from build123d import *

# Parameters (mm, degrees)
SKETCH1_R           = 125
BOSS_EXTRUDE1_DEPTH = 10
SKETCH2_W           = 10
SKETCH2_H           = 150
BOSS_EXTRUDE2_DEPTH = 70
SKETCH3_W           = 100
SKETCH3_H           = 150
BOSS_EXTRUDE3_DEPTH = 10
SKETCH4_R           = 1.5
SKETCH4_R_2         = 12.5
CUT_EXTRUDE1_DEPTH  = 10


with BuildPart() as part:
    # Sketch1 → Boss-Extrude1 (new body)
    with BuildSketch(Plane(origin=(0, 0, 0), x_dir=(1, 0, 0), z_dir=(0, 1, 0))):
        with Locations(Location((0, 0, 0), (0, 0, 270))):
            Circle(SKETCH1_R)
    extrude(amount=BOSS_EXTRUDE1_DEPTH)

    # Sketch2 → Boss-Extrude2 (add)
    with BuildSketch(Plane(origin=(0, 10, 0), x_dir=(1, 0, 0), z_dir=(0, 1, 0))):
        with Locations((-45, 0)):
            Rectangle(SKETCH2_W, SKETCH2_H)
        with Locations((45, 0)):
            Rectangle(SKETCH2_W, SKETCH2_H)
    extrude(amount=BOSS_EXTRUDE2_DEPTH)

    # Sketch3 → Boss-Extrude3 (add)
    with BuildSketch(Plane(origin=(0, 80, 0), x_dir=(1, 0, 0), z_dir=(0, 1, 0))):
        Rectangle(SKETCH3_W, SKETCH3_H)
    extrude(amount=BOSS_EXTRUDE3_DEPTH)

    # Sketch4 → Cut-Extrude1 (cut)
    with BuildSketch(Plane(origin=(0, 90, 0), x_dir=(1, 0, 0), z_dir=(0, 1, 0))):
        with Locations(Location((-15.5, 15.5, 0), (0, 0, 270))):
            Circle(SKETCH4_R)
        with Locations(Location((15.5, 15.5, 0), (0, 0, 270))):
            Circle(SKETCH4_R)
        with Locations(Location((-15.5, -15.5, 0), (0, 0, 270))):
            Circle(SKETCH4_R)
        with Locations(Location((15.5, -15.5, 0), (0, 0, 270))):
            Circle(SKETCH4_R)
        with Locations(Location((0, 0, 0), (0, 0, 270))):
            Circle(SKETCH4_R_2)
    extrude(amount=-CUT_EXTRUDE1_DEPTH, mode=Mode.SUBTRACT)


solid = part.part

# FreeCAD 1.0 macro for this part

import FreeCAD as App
import Part
import Sketcher


def add_polygon(sketch, points):
    """Adds a closed chain of lines whose ends are joined by coincident constraints."""
    first, n = sketch.GeometryCount, len(points)
    for a, b in zip(points, points[1:] + points[:1]):
        sketch.addGeometry(Part.LineSegment(App.Vector(*a, 0), App.Vector(*b, 0)), False)
    for i in range(n):
        sketch.addConstraint(Sketcher.Constraint("Coincident", first + i, 2, first + (i + 1) % n, 1))

doc = App.newDocument("Part")
params = doc.addObject("Spreadsheet::Sheet", "Params")
for row, (alias, value) in enumerate([
    ("sketch1_diameter", "250 mm"),
    ("pad1_length", "10 mm"),
    ("sketch2_width", "10 mm"),
    ("sketch2_height", "150 mm"),
    ("pad2_length", "70 mm"),
    ("sketch3_width", "100 mm"),
    ("sketch3_height", "150 mm"),
    ("pad3_length", "10 mm"),
    ("sketch4_diameter", "3 mm"),
    ("sketch4_diameter2", "25 mm"),
    ("pocket1_length", "10 mm"),
], start=1):
    params.set(f"A{row}", alias)
    params.set(f"B{row}", "=" + value)
    params.setAlias(f"B{row}", alias)

body = doc.addObject("PartDesign::Body", "Body")

# Sketch on XZ plane
sketch1 = body.newObject("Sketcher::SketchObject", "Sketch")
sketch1.AttachmentSupport = (doc.getObject("XZ_Plane"), [""])
sketch1.MapMode = "FlatFace"
sketch1.addGeometry(Part.Circle(App.Vector(0, 0, 0), App.Vector(0, 0, 1), 125), False)
sketch1.addConstraint([
    Sketcher.Constraint("Coincident", 0, 3, -1, 1),
    Sketcher.Constraint("Diameter", 0, 250.0),
])
sketch1.setExpression("Constraints[1]", "Params.sketch1_diameter")
pad1 = body.newObject("PartDesign::Pad", "Pad")
pad1.Profile = sketch1
pad1.setExpression("Length", "Params.pad1_length")
pad1.Reversed = True

# Sketch on XZ plane
sketch2 = body.newObject("Sketcher::SketchObject", "Sketch001")
sketch2.AttachmentSupport = (doc.getObject("XZ_Plane"), [""])
sketch2.MapMode = "FlatFace"
sketch2.AttachmentOffset = App.Placement(App.Vector(0, 0, -10), App.Rotation())
add_polygon(sketch2, [(-50, -75), (-50, 75), (-40, 75), (-40, -75)])  # lines 0-3
add_polygon(sketch2, [(40, -75), (40, 75), (50, 75), (50, -75)])  # lines 4-7
sketch2.addConstraint([
    Sketcher.Constraint("Vertical", 0),
    Sketcher.Constraint("Horizontal", 1),
    Sketcher.Constraint("Vertical", 2),
    Sketcher.Constraint("Horizontal", 3),
    Sketcher.Constraint("Vertical", 4),
    Sketcher.Constraint("Horizontal", 5),
    Sketcher.Constraint("Vertical", 6),
    Sketcher.Constraint("Horizontal", 7),
    Sketcher.Constraint("Symmetric", 2, 2, 4, 2, -1, 1),
    Sketcher.Constraint("Symmetric", 0, 2, 6, 2, -1, 1),
    Sketcher.Constraint("Horizontal", 1, 2, 4, 2),
    Sketcher.Constraint("DistanceX", 1, 1, 1, 2, 10.0),
    Sketcher.Constraint("DistanceY", 0, 1, 0, 2, 150.0),
    Sketcher.Constraint("DistanceX", 0, 2, -1, 1, 50.0),
])
sketch2.setExpression("Constraints[19]", "Params.sketch2_width")
sketch2.setExpression("Constraints[20]", "Params.sketch2_height")
pad2 = body.newObject("PartDesign::Pad", "Pad001")
pad2.Profile = sketch2
pad2.setExpression("Length", "Params.pad2_length")
pad2.Reversed = True

# Sketch on XZ plane
sketch3 = body.newObject("Sketcher::SketchObject", "Sketch002")
sketch3.AttachmentSupport = (doc.getObject("XZ_Plane"), [""])
sketch3.MapMode = "FlatFace"
sketch3.AttachmentOffset = App.Placement(App.Vector(0, 0, -80), App.Rotation())
add_polygon(sketch3, [(-50, -75), (-50, 75), (50, 75), (50, -75)])  # lines 0-3
sketch3.addConstraint([
    Sketcher.Constraint("Vertical", 0),
    Sketcher.Constraint("Horizontal", 1),
    Sketcher.Constraint("Vertical", 2),
    Sketcher.Constraint("Horizontal", 3),
    Sketcher.Constraint("Symmetric", 0, 2, 2, 2, -1, 1),
    Sketcher.Constraint("DistanceX", 1, 1, 1, 2, 100.0),
    Sketcher.Constraint("DistanceY", 0, 1, 0, 2, 150.0),
])
sketch3.setExpression("Constraints[9]", "Params.sketch3_width")
sketch3.setExpression("Constraints[10]", "Params.sketch3_height")
pad3 = body.newObject("PartDesign::Pad", "Pad002")
pad3.Profile = sketch3
pad3.setExpression("Length", "Params.pad3_length")
pad3.Reversed = True

# Sketch on XZ plane
sketch4 = body.newObject("Sketcher::SketchObject", "Sketch003")
sketch4.AttachmentSupport = (doc.getObject("XZ_Plane"), [""])
sketch4.MapMode = "FlatFace"
sketch4.AttachmentOffset = App.Placement(App.Vector(0, 0, -90), App.Rotation())
sketch4.addGeometry([
    Part.Circle(App.Vector(-15.5, -15.5, 0), App.Vector(0, 0, 1), 1.5),  # 0
    Part.Circle(App.Vector(15.5, -15.5, 0), App.Vector(0, 0, 1), 1.5),  # 1
    Part.Circle(App.Vector(-15.5, 15.5, 0), App.Vector(0, 0, 1), 1.5),  # 2
    Part.Circle(App.Vector(15.5, 15.5, 0), App.Vector(0, 0, 1), 1.5),  # 3
    Part.Circle(App.Vector(0, 0, 0), App.Vector(0, 0, 1), 12.5),  # 4
], False)
sketch4.addConstraint([
    Sketcher.Constraint("Coincident", 4, 3, -1, 1),
    Sketcher.Constraint("Equal", 0, 1),
    Sketcher.Constraint("Equal", 1, 2),
    Sketcher.Constraint("Equal", 2, 3),
    Sketcher.Constraint("Symmetric", 1, 3, 2, 3, -1, 1),
    Sketcher.Constraint("Symmetric", 0, 3, 3, 3, -1, 1),
    Sketcher.Constraint("Symmetric", 0, 3, 1, 3, -2),
    Sketcher.Constraint("Diameter", 0, 3.0),
    Sketcher.Constraint("Diameter", 4, 25.0),
    Sketcher.Constraint("DistanceX", 0, 3, 1, 3, 31.0),
    Sketcher.Constraint("DistanceY", 0, 3, 2, 3, 31.0),
])
sketch4.setExpression("Constraints[7]", "Params.sketch4_diameter")
sketch4.setExpression("Constraints[8]", "Params.sketch4_diameter2")
pocket1 = body.newObject("PartDesign::Pocket", "Pocket")
pocket1.Profile = sketch4
pocket1.setExpression("Length", "Params.pocket1_length")
pocket1.Reversed = True

doc.recompute()
